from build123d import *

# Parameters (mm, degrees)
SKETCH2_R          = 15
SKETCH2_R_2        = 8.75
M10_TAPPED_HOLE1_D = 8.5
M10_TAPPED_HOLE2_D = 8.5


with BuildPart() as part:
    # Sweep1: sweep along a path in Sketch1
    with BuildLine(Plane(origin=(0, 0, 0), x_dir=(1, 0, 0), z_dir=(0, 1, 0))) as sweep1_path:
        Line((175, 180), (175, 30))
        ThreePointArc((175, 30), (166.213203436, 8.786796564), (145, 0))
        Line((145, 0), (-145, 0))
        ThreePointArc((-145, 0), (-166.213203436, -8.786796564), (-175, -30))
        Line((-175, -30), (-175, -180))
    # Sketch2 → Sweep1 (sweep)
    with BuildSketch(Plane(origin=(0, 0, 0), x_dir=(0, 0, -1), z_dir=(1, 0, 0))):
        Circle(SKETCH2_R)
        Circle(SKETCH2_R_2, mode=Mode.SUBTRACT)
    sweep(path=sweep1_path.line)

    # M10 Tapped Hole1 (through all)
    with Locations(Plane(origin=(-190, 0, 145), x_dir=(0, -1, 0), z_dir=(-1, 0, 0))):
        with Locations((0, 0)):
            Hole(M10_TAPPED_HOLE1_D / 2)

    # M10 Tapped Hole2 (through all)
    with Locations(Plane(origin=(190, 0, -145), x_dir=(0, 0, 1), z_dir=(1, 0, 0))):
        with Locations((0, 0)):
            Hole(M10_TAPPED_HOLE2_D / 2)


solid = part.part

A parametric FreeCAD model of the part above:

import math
import FreeCAD as App
import Part
import Sketcher

V = App.Vector
Q = App.Units.Quantity

doc = App.newDocument("Part")
params = doc.addObject("Spreadsheet::Sheet", "Params")
for row, (alias, value) in enumerate([
    ("sketch1_diameter", "30 mm"),
    ("sketch1_diameter2", "17.5 mm"),
    ("sketch2_radius", "30 mm"),
    ("sketch2_width", "290 mm"),
    ("sketch2_height", "150 mm"),
    ("sketch3_diameter", "8.5 mm"),
    ("hole_diameter", "8.5 mm"),
    ("sketch4_diameter", "8.5 mm"),
    ("hole2_diameter", "8.5 mm"),
], start=1):
    params.set(f"A{row}", alias)
    params.set(f"B{row}", "=" + value)
    params.setAlias(f"B{row}", alias)

body = doc.addObject("PartDesign::Body", "Body")

# Sketch on YZ plane
sketch1 = body.newObject("Sketcher::SketchObject", "Sketch")
sketch1.AttachmentSupport = (doc.getObject("YZ_Plane"), [""])
sketch1.MapMode = "FlatFace"
sketch1.addGeometry(Part.Circle(V(0, 0, 0), V(0, 0, 1), 15), False)
sketch1.addGeometry(Part.Circle(V(0, 0, 0), V(0, 0, 1), 9), False)
sketch1.addConstraint(Sketcher.Constraint("Coincident", 0, 3, -1, 1))
sketch1.addConstraint(Sketcher.Constraint("Coincident", 1, 3, -1, 1))
sketch1.addConstraint(Sketcher.Constraint("Diameter", 0, Q("30 mm")))
sketch1.addConstraint(Sketcher.Constraint("Diameter", 1, Q("17.5 mm")))
sketch1.setExpression("Constraints[2]", "Params.sketch1_diameter")
sketch1.setExpression("Constraints[3]", "Params.sketch1_diameter2")

# Sketch on XZ plane
sketch2 = body.newObject("Sketcher::SketchObject", "Sketch001")
sketch2.AttachmentSupport = (doc.getObject("XZ_Plane"), [""])
sketch2.MapMode = "FlatFace"
sketch2.addGeometry(Part.LineSegment(V(175, -180, 0), V(175, -30, 0)), False)
sketch2.addGeometry(Part.ArcOfCircle(Part.Circle(V(145, -30, 0), V(0, 0, 1), 30), math.radians(0), math.radians(90)), False)
sketch2.addGeometry(Part.LineSegment(V(145, 0, 0), V(-145, 0, 0)), False)
sketch2.addGeometry(Part.ArcOfCircle(Part.Circle(V(-145, 30, 0), V(0, 0, 1), 30), math.radians(180), math.radians(270)), False)
sketch2.addGeometry(Part.LineSegment(V(-175, 30, 0), V(-175, 180, 0)), False)
sketch2.addConstraint(Sketcher.Constraint("Tangent", 0, 2, 1, 1))
sketch2.addConstraint(Sketcher.Constraint("Tangent", 1, 2, 2, 1))
sketch2.addConstraint(Sketcher.Constraint("Tangent", 2, 2, 3, 2))
sketch2.addConstraint(Sketcher.Constraint("Tangent", 3, 1, 4, 1))
sketch2.addConstraint(Sketcher.Constraint("Vertical", 0))
sketch2.addConstraint(Sketcher.Constraint("Horizontal", 2))
sketch2.addConstraint(Sketcher.Constraint("Vertical", 4))
sketch2.addConstraint(Sketcher.Constraint("Equal", 1, 3))
sketch2.addConstraint(Sketcher.Constraint("Symmetric", 1, 3, 3, 3, -1, 1))
sketch2.addConstraint(Sketcher.Constraint("Equal", 0, 4))
sketch2.addConstraint(Sketcher.Constraint("Radius", 1, Q("30 mm")))
sketch2.addConstraint(Sketcher.Constraint("DistanceX", 2, 2, 2, 1, Q("290 mm")))
sketch2.addConstraint(Sketcher.Constraint("DistanceY", 0, 1, 0, 2, Q("150 mm")))
sketch2.setExpression("Constraints[10]", "Params.sketch2_radius")
sketch2.setExpression("Constraints[11]", "Params.sketch2_width")
sketch2.setExpression("Constraints[12]", "Params.sketch2_height")
doc.recompute()

additivepipe = body.newObject("PartDesign::AdditivePipe", "AdditivePipe")
additivepipe.Profile = sketch1
additivepipe.Spine = (sketch2, ["Edge1", "Edge2", "Edge3", "Edge4", "Edge5"])

# Sketch on YZ plane
sketch3 = body.newObject("Sketcher::SketchObject", "Sketch002")
sketch3.AttachmentSupport = (doc.getObject("YZ_Plane"), [""])
sketch3.MapMode = "FlatFace"
sketch3.AttachmentOffset = App.Placement(V(0, 0, -190), App.Rotation())
sketch3.addGeometry(Part.Circle(V(0, 145, 0), V(0, 0, 1), 4.2), False)
sketch3.addConstraint(Sketcher.Constraint("PointOnObject", 0, 3, -2))
sketch3.addConstraint(Sketcher.Constraint("Diameter", 0, Q("8.5 mm")))
sketch3.addConstraint(Sketcher.Constraint("DistanceY", -1, 1, 0, 3, Q("145 mm")))
sketch3.setExpression("Constraints[1]", "Params.sketch3_diameter")
doc.recompute()
hole = body.newObject("PartDesign::Hole", "Hole")
hole.Profile = sketch3
hole.ThreadType = "None"
hole.setExpression("Diameter", "Params.hole_diameter")
hole.DepthType = "ThroughAll"
hole.Reversed = True

# Sketch on YZ plane
sketch4 = body.newObject("Sketcher::SketchObject", "Sketch003")
sketch4.AttachmentSupport = (doc.getObject("YZ_Plane"), [""])
sketch4.MapMode = "FlatFace"
sketch4.AttachmentOffset = App.Placement(V(0, 0, 190), App.Rotation())
sketch4.addGeometry(Part.Circle(V(0, -145, 0), V(0, 0, 1), 4.2), False)
sketch4.addConstraint(Sketcher.Constraint("PointOnObject", 0, 3, -2))
sketch4.addConstraint(Sketcher.Constraint("Diameter", 0, Q("8.5 mm")))
sketch4.addConstraint(Sketcher.Constraint("DistanceY", 0, 3, -1, 1, Q("145 mm")))
sketch4.setExpression("Constraints[1]", "Params.sketch4_diameter")
doc.recompute()
hole2 = body.newObject("PartDesign::Hole", "Hole001")
hole2.Profile = sketch4
hole2.ThreadType = "None"
hole2.setExpression("Diameter", "Params.hole2_diameter")
hole2.DepthType = "ThroughAll"

doc.recompute()
